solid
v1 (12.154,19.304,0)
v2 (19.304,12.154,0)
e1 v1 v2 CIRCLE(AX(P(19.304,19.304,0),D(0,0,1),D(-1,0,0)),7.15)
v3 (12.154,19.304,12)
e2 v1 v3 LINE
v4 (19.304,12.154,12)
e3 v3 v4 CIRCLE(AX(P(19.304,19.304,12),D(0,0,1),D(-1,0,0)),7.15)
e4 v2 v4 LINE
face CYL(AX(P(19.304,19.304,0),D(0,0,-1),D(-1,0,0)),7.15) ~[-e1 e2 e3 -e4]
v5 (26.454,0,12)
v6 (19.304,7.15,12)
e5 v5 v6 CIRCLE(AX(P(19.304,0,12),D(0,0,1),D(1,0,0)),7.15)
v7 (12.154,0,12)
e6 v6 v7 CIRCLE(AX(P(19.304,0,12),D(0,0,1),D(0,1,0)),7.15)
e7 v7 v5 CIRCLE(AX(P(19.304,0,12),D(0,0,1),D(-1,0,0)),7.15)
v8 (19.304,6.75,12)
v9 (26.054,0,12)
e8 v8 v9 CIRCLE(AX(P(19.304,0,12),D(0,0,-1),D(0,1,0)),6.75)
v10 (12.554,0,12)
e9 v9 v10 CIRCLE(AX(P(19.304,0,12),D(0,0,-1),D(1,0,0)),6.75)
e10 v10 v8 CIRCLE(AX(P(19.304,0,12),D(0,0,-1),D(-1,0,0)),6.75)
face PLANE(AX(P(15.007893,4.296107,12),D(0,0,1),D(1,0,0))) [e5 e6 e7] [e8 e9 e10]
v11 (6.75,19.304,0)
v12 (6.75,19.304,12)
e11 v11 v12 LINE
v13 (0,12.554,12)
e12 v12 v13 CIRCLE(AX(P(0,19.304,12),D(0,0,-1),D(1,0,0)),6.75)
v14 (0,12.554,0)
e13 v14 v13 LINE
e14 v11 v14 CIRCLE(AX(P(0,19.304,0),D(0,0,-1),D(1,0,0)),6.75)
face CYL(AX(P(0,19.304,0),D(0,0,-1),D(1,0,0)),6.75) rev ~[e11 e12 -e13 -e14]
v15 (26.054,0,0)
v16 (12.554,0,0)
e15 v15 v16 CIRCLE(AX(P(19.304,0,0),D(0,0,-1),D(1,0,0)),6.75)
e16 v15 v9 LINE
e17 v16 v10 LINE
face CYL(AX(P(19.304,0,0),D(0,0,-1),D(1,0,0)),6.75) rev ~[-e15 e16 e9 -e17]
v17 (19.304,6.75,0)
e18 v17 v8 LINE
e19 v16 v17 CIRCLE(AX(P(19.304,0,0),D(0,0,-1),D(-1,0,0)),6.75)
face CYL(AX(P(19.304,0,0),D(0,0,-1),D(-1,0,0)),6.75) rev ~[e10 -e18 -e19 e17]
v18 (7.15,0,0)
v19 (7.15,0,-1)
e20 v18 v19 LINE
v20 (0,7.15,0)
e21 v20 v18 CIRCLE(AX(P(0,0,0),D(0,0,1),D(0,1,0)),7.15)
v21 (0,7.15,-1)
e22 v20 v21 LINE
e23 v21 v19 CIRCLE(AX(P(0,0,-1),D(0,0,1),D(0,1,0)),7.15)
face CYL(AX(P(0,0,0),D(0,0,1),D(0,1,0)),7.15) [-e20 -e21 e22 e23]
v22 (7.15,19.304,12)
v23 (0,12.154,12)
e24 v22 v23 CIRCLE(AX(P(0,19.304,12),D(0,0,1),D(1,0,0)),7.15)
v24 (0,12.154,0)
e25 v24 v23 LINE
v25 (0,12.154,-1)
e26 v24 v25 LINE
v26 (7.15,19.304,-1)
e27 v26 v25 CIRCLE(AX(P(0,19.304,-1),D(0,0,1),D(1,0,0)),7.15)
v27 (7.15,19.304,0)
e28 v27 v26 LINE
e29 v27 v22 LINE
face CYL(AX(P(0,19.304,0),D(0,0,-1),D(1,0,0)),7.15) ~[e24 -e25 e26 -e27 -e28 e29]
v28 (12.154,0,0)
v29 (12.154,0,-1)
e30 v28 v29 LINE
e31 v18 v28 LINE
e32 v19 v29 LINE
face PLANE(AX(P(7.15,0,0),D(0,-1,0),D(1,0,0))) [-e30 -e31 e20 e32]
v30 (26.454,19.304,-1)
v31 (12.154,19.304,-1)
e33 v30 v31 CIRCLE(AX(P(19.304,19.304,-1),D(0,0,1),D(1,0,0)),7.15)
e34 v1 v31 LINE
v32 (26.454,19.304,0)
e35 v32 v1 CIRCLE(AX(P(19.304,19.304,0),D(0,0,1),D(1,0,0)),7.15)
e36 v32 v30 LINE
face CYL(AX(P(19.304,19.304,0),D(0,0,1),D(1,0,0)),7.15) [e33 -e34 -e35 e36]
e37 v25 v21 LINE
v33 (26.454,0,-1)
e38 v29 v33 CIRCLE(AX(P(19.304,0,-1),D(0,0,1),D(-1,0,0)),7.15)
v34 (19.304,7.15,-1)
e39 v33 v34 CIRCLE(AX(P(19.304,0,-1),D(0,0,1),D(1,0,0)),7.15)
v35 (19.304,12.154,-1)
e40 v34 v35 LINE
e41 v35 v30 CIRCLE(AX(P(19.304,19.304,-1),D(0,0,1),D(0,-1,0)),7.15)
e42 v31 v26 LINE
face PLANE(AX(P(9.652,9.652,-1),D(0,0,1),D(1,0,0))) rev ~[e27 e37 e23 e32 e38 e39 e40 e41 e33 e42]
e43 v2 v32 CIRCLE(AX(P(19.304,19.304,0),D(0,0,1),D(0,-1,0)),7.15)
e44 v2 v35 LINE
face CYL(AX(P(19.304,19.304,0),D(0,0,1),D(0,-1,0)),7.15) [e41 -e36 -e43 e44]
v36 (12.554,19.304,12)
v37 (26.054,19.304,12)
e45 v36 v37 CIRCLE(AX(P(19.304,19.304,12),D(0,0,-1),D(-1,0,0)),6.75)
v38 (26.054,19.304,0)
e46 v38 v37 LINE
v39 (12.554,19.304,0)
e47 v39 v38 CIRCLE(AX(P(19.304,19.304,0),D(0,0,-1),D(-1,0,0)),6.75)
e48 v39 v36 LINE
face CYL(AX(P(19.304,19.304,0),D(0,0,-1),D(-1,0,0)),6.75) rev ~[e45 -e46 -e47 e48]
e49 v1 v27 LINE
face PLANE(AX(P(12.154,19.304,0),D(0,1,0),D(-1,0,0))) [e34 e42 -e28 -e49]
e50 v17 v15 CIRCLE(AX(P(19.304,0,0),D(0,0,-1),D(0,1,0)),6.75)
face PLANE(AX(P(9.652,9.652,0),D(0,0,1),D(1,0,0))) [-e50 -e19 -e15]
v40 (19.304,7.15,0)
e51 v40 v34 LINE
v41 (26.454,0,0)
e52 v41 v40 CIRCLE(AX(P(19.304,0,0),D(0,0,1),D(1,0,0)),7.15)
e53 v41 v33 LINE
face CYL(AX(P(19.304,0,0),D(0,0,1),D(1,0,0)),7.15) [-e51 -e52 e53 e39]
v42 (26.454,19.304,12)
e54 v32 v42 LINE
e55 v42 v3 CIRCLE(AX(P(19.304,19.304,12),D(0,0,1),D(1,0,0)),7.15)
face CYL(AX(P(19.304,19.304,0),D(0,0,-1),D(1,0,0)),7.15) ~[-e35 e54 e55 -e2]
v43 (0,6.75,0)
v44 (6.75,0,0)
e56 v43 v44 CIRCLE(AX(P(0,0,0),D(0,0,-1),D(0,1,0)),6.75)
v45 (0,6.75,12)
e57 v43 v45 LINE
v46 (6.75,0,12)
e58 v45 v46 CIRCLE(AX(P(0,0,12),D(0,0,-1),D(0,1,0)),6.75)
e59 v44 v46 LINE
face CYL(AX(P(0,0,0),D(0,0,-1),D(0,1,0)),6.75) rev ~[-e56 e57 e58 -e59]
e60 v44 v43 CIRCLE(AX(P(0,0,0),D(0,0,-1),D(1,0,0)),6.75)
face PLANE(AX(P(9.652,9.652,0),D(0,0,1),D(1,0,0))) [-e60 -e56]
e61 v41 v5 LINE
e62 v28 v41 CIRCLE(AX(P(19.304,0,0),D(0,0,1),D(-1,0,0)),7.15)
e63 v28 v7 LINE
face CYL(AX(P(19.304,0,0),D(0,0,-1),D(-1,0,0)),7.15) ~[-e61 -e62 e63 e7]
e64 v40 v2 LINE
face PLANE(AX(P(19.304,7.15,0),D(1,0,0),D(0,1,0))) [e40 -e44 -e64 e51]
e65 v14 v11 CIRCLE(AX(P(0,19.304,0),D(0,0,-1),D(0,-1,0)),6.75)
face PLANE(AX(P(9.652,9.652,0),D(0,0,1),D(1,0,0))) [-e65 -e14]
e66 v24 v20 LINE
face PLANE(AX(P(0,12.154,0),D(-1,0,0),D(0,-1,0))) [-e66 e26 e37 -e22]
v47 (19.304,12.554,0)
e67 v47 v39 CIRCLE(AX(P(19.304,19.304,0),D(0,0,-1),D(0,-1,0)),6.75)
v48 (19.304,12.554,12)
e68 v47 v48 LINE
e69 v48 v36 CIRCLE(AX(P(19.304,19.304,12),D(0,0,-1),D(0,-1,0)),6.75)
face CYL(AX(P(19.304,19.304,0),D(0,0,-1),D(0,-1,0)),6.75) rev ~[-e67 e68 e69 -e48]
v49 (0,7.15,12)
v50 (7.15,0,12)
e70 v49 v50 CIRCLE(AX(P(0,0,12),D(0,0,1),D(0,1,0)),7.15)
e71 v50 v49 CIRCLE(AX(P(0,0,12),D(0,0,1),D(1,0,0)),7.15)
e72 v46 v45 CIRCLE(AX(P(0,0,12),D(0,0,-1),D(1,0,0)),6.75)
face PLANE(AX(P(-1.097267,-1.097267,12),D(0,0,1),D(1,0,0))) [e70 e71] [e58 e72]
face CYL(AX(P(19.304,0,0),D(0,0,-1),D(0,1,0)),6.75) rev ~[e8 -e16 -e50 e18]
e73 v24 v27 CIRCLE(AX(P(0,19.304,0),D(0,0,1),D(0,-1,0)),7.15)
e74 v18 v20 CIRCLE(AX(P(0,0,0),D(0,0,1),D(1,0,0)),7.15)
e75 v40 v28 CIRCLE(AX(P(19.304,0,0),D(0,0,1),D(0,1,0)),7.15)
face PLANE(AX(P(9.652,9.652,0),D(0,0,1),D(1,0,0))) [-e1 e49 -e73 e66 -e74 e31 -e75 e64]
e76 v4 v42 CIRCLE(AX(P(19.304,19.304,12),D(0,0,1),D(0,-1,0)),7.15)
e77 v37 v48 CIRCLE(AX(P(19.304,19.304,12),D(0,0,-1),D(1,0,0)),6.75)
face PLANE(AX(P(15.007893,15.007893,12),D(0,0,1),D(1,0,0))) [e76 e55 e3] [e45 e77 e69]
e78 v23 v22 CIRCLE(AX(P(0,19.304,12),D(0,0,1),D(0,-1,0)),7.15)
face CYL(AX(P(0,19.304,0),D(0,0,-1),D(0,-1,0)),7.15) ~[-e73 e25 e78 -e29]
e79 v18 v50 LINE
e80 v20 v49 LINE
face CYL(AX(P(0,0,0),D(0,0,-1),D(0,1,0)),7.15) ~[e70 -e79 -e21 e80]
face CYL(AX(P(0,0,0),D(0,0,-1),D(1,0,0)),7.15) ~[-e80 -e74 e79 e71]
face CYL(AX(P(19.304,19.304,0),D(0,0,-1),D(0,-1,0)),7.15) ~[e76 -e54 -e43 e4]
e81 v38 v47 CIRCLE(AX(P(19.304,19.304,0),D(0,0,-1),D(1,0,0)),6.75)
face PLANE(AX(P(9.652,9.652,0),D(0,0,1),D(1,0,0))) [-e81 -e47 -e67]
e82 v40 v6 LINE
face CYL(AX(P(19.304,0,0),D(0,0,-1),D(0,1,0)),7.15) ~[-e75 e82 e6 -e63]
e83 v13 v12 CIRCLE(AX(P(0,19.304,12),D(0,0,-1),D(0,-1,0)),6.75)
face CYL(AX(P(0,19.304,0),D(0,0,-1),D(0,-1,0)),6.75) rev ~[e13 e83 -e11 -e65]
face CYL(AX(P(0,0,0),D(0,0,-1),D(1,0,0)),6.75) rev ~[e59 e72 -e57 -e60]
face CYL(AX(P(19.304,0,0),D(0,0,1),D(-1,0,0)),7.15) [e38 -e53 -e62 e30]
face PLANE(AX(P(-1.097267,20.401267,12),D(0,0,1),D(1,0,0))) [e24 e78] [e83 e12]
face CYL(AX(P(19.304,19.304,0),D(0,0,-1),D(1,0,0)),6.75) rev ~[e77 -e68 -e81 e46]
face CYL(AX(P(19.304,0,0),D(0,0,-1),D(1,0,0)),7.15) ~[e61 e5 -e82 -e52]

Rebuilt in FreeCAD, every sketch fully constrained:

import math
import FreeCAD as App
import Part
import Sketcher

V = App.Vector
Q = App.Units.Quantity

doc = App.newDocument("Part")
body = doc.addObject("PartDesign::Body", "Body")

# Sketch on XY plane
sketch1 = body.newObject("Sketcher::SketchObject", "Sketch")
sketch1.AttachmentSupport = (doc.getObject("XY_Plane"), [""])
sketch1.MapMode = "FlatFace"
sketch1.addGeometry(Part.LineSegment(V(7, 0, 0), V(12, 0, 0)), False)
sketch1.addGeometry(Part.ArcOfCircle(Part.Circle(V(19, 0, 0), V(0, 0, 1), 7), math.radians(180), math.radians(360)), False)
sketch1.addGeometry(Part.ArcOfCircle(Part.Circle(V(19, 0, 0), V(0, 0, 1), 7), math.radians(0), math.radians(90)), False)
sketch1.addGeometry(Part.LineSegment(V(19, 7, 0), V(19, 12, 0)), False)
sketch1.addGeometry(Part.ArcOfCircle(Part.Circle(V(19, 19, 0), V(0, 0, 1), 7), math.radians(-90), math.radians(0)), False)
sketch1.addGeometry(Part.ArcOfCircle(Part.Circle(V(19, 19, 0), V(0, 0, 1), 7), math.radians(0), math.radians(180)), False)
sketch1.addGeometry(Part.LineSegment(V(12, 19, 0), V(7, 19, 0)), False)
sketch1.addGeometry(Part.ArcOfCircle(Part.Circle(V(0, 19, 0), V(0, 0, 1), 7), math.radians(0), math.radians(270)), False)
sketch1.addGeometry(Part.LineSegment(V(0, 12, 0), V(0, 7, 0)), False)
sketch1.addGeometry(Part.ArcOfCircle(Part.Circle(V(0, 0, 0), V(0, 0, 1), 7), math.radians(90), math.radians(360)), False)
sketch1.addConstraint(Sketcher.Constraint("Coincident", 0, 2, 1, 1))
sketch1.addConstraint(Sketcher.Constraint("Tangent", 1, 2, 2, 1))
sketch1.addConstraint(Sketcher.Constraint("Coincident", 2, 2, 3, 1))
sketch1.addConstraint(Sketcher.Constraint("Coincident", 3, 2, 4, 1))
sketch1.addConstraint(Sketcher.Constraint("Tangent", 4, 2, 5, 1))
sketch1.addConstraint(Sketcher.Constraint("Coincident", 5, 2, 6, 1))
sketch1.addConstraint(Sketcher.Constraint("Coincident", 6, 2, 7, 1))
sketch1.addConstraint(Sketcher.Constraint("Coincident", 7, 2, 8, 1))
sketch1.addConstraint(Sketcher.Constraint("Coincident", 8, 2, 9, 1))
sketch1.addConstraint(Sketcher.Constraint("Coincident", 9, 2, 0, 1))
sketch1.addConstraint(Sketcher.Constraint("Horizontal", 0))
sketch1.addConstraint(Sketcher.Constraint("Vertical", 3))
sketch1.addConstraint(Sketcher.Constraint("Horizontal", 6))
sketch1.addConstraint(Sketcher.Constraint("Vertical", 8))
sketch1.addConstraint(Sketcher.Constraint("Coincident", 9, 3, -1, 1))
sketch1.addConstraint(Sketcher.Constraint("Equal", 1, 2))
sketch1.addConstraint(Sketcher.Constraint("Equal", 2, 4))
sketch1.addConstraint(Sketcher.Constraint("Equal", 4, 5))
sketch1.addConstraint(Sketcher.Constraint("Equal", 5, 7))
sketch1.addConstraint(Sketcher.Constraint("Equal", 7, 9))
sketch1.addConstraint(Sketcher.Constraint("PointOnObject", 1, 3, -1))
sketch1.addConstraint(Sketcher.Constraint("PointOnObject", 7, 3, -2))
sketch1.addConstraint(Sketcher.Constraint("PointOnObject", 0, 2, -1))
sketch1.addConstraint(Sketcher.Constraint("PointOnObject", 1, 2, -1))
sketch1.addConstraint(Sketcher.Constraint("PointOnObject", 7, 2, -2))
sketch1.addConstraint(Sketcher.Constraint("Horizontal", 5, 3, 7, 3))
sketch1.addConstraint(Sketcher.Constraint("Horizontal", 7, 3, 4, 2))
sketch1.addConstraint(Sketcher.Constraint("Horizontal", 4, 2, 5, 2))
sketch1.addConstraint(Sketcher.Constraint("Vertical", 2, 3, 4, 3))
sketch1.addConstraint(Sketcher.Constraint("Vertical", 5, 3, 2, 2))
sketch1.addConstraint(Sketcher.Constraint("Equal", 6, 3))
sketch1.addConstraint(Sketcher.Constraint("Radius", 1, Q("7.15 mm")))
sketch1.addConstraint(Sketcher.Constraint("DistanceX", 0, 1, 0, 2, Q("5.004 mm")))
pad1 = body.newObject("PartDesign::Pad", "Pad")
pad1.Profile = sketch1
pad1.Length = 1
pad1.Reversed = True

# Sketch on XY plane
sketch2 = body.newObject("Sketcher::SketchObject", "Sketch001")
sketch2.AttachmentSupport = (doc.getObject("XY_Plane"), [""])
sketch2.MapMode = "FlatFace"
sketch2.addGeometry(Part.ArcOfCircle(Part.Circle(V(0, 19, 0), V(0, 0, 1), 7), math.radians(0), math.radians(270)), False)
sketch2.addGeometry(Part.ArcOfCircle(Part.Circle(V(0, 19, 0), V(0, 0, 1), 7), math.radians(-90), math.radians(0)), False)
sketch2.addGeometry(Part.ArcOfCircle(Part.Circle(V(0, 19, 0), V(0, 0, 1), 7), math.radians(0), math.radians(270)), False)
sketch2.addGeometry(Part.ArcOfCircle(Part.Circle(V(0, 19, 0), V(0, 0, 1), 7), math.radians(-90), math.radians(0)), False)
sketch2.addGeometry(Part.ArcOfCircle(Part.Circle(V(0, 0, 0), V(0, 0, 1), 7), math.radians(90), math.radians(360)), False)
sketch2.addGeometry(Part.ArcOfCircle(Part.Circle(V(0, 0, 0), V(0, 0, 1), 7), math.radians(0), math.radians(90)), False)
sketch2.addGeometry(Part.ArcOfCircle(Part.Circle(V(0, 0, 0), V(0, 0, 1), 7), math.radians(90), math.radians(360)), False)
sketch2.addGeometry(Part.ArcOfCircle(Part.Circle(V(0, 0, 0), V(0, 0, 1), 7), math.radians(0), math.radians(90)), False)
sketch2.addGeometry(Part.ArcOfCircle(Part.Circle(V(19, 0, 0), V(0, 0, 1), 7), math.radians(90), math.radians(180)), False)
sketch2.addGeometry(Part.ArcOfCircle(Part.Circle(V(19, 0, 0), V(0, 0, 1), 7), math.radians(180), math.radians(360)), False)
sketch2.addGeometry(Part.ArcOfCircle(Part.Circle(V(19, 0, 0), V(0, 0, 1), 7), math.radians(0), math.radians(90)), False)
sketch2.addGeometry(Part.ArcOfCircle(Part.Circle(V(19, 0, 0), V(0, 0, 1), 7), math.radians(90), math.radians(180)), False)
sketch2.addGeometry(Part.ArcOfCircle(Part.Circle(V(19, 0, 0), V(0, 0, 1), 7), math.radians(0), math.radians(90)), False)
sketch2.addGeometry(Part.ArcOfCircle(Part.Circle(V(19, 0, 0), V(0, 0, 1), 7), math.radians(180), math.radians(360)), False)
sketch2.addGeometry(Part.ArcOfCircle(Part.Circle(V(19, 19, 0), V(0, 0, 1), 7), math.radians(180), math.radians(270)), False)
sketch2.addGeometry(Part.ArcOfCircle(Part.Circle(V(19, 19, 0), V(0, 0, 1), 7), math.radians(-90), math.radians(0)), False)
sketch2.addGeometry(Part.ArcOfCircle(Part.Circle(V(19, 19, 0), V(0, 0, 1), 7), math.radians(0), math.radians(180)), False)
sketch2.addGeometry(Part.ArcOfCircle(Part.Circle(V(19, 19, 0), V(0, 0, 1), 7), math.radians(180), math.radians(270)), False)
sketch2.addGeometry(Part.ArcOfCircle(Part.Circle(V(19, 19, 0), V(0, 0, 1), 7), math.radians(0), math.radians(180)), False)
sketch2.addGeometry(Part.ArcOfCircle(Part.Circle(V(19, 19, 0), V(0, 0, 1), 7), math.radians(-90), math.radians(0)), False)
sketch2.addConstraint(Sketcher.Constraint("Tangent", 0, 1, 1, 2))
sketch2.addConstraint(Sketcher.Constraint("Coincident", 1, 1, 0, 2))
sketch2.addConstraint(Sketcher.Constraint("Tangent", 2, 1, 3, 2))
sketch2.addConstraint(Sketcher.Constraint("Coincident", 3, 1, 2, 2))
sketch2.addConstraint(Sketcher.Constraint("Tangent", 4, 1, 5, 2))
sketch2.addConstraint(Sketcher.Constraint("Coincident", 5, 1, 4, 2))
sketch2.addConstraint(Sketcher.Constraint("Tangent", 6, 1, 7, 2))
sketch2.addConstraint(Sketcher.Constraint("Coincident", 7, 1, 6, 2))
sketch2.addConstraint(Sketcher.Constraint("Tangent", 8, 2, 9, 1))
sketch2.addConstraint(Sketcher.Constraint("Tangent", 9, 2, 10, 1))
sketch2.addConstraint(Sketcher.Constraint("Tangent", 10, 2, 8, 1))
sketch2.addConstraint(Sketcher.Constraint("Tangent", 11, 1, 12, 2))
sketch2.addConstraint(Sketcher.Constraint("Tangent", 12, 1, 13, 2))
sketch2.addConstraint(Sketcher.Constraint("Tangent", 13, 1, 11, 2))
sketch2.addConstraint(Sketcher.Constraint("Tangent", 14, 2, 15, 1))
sketch2.addConstraint(Sketcher.Constraint("Tangent", 15, 2, 16, 1))
sketch2.addConstraint(Sketcher.Constraint("Tangent", 16, 2, 14, 1))
sketch2.addConstraint(Sketcher.Constraint("Tangent", 17, 1, 18, 2))
sketch2.addConstraint(Sketcher.Constraint("Tangent", 18, 1, 19, 2))
sketch2.addConstraint(Sketcher.Constraint("Tangent", 19, 1, 17, 2))
sketch2.addConstraint(Sketcher.Constraint("Coincident", 4, 3, -1, 1))
sketch2.addConstraint(Sketcher.Constraint("Coincident", 6, 3, -1, 1))
sketch2.addConstraint(Sketcher.Constraint("Coincident", 2, 3, 0, 3))
sketch2.addConstraint(Sketcher.Constraint("Coincident", 11, 3, 8, 3))
sketch2.addConstraint(Sketcher.Constraint("Coincident", 17, 3, 14, 3))
sketch2.addConstraint(Sketcher.Constraint("Equal", 1, 4))
sketch2.addConstraint(Sketcher.Constraint("Equal", 3, 6))
sketch2.addConstraint(Sketcher.Constraint("Equal", 5, 8))
sketch2.addConstraint(Sketcher.Constraint("Equal", 7, 11))
sketch2.addConstraint(Sketcher.Constraint("Equal", 10, 14))
sketch2.addConstraint(Sketcher.Constraint("Equal", 13, 17))
sketch2.addConstraint(Sketcher.Constraint("PointOnObject", 0, 3, -2))
sketch2.addConstraint(Sketcher.Constraint("PointOnObject", 8, 3, -1))
sketch2.addConstraint(Sketcher.Constraint("PointOnObject", 1, 1, -2))
sketch2.addConstraint(Sketcher.Constraint("PointOnObject", 3, 1, -2))
sketch2.addConstraint(Sketcher.Constraint("PointOnObject", 4, 1, -2))
sketch2.addConstraint(Sketcher.Constraint("PointOnObject", 5, 1, -1))
sketch2.addConstraint(Sketcher.Constraint("PointOnObject", 6, 1, -2))
sketch2.addConstraint(Sketcher.Constraint("PointOnObject", 7, 1, -1))
sketch2.addConstraint(Sketcher.Constraint("PointOnObject", 8, 2, -1))
sketch2.addConstraint(Sketcher.Constraint("PointOnObject", 9, 2, -1))
sketch2.addConstraint(Sketcher.Constraint("PointOnObject", 12, 1, -1))
sketch2.addConstraint(Sketcher.Constraint("PointOnObject", 13, 1, -1))
sketch2.addConstraint(Sketcher.Constraint("Horizontal", 3, 3, 14, 3))
sketch2.addConstraint(Sketcher.Constraint("Horizontal", 19, 3, 0, 1))
sketch2.addConstraint(Sketcher.Constraint("Horizontal", 0, 1, 2, 1))
sketch2.addConstraint(Sketcher.Constraint("Horizontal", 2, 1, 15, 2))
sketch2.addConstraint(Sketcher.Constraint("Horizontal", 15, 2, 16, 2))
sketch2.addConstraint(Sketcher.Constraint("Horizontal", 16, 2, 17, 1))
sketch2.addConstraint(Sketcher.Constraint("Horizontal", 17, 1, 18, 1))
sketch2.addConstraint(Sketcher.Constraint("Vertical", 13, 3, 14, 3))
sketch2.addConstraint(Sketcher.Constraint("Vertical", 19, 3, 10, 2))
sketch2.addConstraint(Sketcher.Constraint("Vertical", 10, 2, 11, 1))
sketch2.addConstraint(Sketcher.Constraint("Vertical", 11, 1, 14, 2))
sketch2.addConstraint(Sketcher.Constraint("Vertical", 14, 2, 19, 1))
sketch2.addConstraint(Sketcher.Constraint("Radius", 0, Q("7.15 mm")))
sketch2.addConstraint(Sketcher.Constraint("Radius", 2, Q("6.75 mm")))
sketch2.addConstraint(Sketcher.Constraint("DistanceY", -1, 1, 0, 3, Q("19.304 mm")))
sketch2.addConstraint(Sketcher.Constraint("DistanceX", -1, 1, 8, 3, Q("19.304 mm")))
pad2 = body.newObject("PartDesign::Pad", "Pad001")
pad2.Profile = sketch2
pad2.Length = 12

doc.recompute()
